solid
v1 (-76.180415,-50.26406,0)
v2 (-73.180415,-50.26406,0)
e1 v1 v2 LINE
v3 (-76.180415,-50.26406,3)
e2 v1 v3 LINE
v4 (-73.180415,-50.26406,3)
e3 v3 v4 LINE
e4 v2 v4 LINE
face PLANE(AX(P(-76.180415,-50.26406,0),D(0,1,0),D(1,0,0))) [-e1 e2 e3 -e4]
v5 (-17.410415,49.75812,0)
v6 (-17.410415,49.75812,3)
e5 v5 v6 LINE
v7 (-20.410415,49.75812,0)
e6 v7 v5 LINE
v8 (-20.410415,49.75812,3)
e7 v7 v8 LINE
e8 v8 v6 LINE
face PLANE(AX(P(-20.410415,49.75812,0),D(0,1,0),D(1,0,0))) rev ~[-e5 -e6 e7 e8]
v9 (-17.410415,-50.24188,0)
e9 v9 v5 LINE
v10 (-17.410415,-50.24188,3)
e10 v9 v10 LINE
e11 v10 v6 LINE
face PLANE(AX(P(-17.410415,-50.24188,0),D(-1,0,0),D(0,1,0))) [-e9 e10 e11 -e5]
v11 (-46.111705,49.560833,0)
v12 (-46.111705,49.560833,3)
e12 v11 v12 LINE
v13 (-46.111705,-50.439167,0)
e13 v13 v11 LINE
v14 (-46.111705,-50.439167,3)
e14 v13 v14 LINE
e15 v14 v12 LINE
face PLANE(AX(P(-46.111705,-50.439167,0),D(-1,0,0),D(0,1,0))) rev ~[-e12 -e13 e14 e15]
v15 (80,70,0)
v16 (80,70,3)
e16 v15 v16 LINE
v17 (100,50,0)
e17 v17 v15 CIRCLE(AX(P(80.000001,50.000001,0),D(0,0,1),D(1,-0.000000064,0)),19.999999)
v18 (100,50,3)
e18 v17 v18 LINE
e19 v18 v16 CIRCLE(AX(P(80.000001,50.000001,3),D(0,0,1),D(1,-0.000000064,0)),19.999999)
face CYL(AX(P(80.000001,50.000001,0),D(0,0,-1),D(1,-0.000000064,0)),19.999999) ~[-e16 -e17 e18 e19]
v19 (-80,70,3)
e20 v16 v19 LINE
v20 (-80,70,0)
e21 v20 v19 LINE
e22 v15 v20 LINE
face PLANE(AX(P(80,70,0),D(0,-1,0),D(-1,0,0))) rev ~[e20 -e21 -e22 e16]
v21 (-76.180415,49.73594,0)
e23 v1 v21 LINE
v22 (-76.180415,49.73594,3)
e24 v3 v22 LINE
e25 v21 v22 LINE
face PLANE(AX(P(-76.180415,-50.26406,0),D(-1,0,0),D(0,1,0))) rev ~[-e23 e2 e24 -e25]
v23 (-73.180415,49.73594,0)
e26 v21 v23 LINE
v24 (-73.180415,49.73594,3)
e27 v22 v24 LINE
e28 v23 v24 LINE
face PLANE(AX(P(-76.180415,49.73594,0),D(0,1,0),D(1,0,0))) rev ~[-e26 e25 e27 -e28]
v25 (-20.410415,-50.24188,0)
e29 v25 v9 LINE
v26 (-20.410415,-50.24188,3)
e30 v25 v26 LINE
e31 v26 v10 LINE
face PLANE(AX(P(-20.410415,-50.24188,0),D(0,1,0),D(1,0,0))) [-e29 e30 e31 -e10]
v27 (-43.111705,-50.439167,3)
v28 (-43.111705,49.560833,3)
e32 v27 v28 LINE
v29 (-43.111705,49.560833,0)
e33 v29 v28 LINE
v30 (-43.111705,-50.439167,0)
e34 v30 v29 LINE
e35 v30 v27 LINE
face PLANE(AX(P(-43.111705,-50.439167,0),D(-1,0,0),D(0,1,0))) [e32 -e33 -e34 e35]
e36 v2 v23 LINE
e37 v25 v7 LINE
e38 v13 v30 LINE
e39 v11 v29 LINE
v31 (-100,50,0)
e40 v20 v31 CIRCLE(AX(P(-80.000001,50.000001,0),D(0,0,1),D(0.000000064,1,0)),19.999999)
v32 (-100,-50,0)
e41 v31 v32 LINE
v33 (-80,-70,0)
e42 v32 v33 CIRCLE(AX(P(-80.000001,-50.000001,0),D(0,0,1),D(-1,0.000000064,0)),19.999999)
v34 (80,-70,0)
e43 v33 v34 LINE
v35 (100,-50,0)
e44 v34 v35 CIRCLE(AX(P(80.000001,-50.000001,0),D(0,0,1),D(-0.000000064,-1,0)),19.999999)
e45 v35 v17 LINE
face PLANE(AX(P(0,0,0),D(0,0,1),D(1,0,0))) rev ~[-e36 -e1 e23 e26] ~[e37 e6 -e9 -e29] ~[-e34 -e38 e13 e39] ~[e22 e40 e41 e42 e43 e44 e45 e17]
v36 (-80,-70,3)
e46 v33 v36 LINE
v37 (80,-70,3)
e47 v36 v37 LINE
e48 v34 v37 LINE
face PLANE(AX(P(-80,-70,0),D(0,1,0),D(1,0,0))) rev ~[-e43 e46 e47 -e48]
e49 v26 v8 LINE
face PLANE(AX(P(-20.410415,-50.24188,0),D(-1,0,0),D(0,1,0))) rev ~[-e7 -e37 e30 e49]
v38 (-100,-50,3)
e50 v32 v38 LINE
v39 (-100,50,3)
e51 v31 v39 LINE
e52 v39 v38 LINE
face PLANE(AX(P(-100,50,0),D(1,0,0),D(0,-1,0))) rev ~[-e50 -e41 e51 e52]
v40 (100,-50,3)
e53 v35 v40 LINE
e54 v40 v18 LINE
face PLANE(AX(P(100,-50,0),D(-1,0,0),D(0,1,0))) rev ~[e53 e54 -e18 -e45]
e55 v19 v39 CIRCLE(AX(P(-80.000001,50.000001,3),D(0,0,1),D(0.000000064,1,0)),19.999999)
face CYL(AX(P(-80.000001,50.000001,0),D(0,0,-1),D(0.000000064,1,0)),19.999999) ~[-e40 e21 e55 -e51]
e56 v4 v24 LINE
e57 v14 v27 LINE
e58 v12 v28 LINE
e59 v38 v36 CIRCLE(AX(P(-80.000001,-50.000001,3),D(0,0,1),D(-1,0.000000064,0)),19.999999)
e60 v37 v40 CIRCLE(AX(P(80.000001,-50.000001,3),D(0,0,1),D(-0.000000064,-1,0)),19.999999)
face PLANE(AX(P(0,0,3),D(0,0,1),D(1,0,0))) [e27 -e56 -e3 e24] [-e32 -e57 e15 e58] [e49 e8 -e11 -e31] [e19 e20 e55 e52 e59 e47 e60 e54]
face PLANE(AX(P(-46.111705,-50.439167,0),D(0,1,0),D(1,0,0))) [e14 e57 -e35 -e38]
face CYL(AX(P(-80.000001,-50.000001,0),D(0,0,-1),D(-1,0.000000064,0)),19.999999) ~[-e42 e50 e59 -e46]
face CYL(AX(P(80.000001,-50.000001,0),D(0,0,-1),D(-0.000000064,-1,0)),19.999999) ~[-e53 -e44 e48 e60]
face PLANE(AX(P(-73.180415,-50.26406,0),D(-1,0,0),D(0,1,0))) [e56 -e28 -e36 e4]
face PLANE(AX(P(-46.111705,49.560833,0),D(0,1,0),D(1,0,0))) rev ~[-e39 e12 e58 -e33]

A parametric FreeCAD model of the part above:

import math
import FreeCAD as App
import Part
import Sketcher
Q = App.Units.Quantity


def add_polygon(sketch, points):
    """Adds a closed chain of lines whose ends are joined by coincident constraints."""
    first, n = sketch.GeometryCount, len(points)
    for a, b in zip(points, points[1:] + points[:1]):
        sketch.addGeometry(Part.LineSegment(App.Vector(*a, 0), App.Vector(*b, 0)), False)
    for i in range(n):
        sketch.addConstraint(Sketcher.Constraint("Coincident", first + i, 2, first + (i + 1) % n, 1))

doc = App.newDocument("Part")
params = doc.addObject("Spreadsheet::Sheet", "Params")
for row, (alias, value) in enumerate([
    ("sketch1_radius", "19.999999 mm"),
    ("sketch1_width", "160 mm"),
    ("sketch1_width2", "3 mm"),
    ("sketch1_height", "100 mm"),
    ("pad1_length", "3 mm"),
], start=1):
    params.set(f"A{row}", alias)
    params.set(f"B{row}", "=" + value)
    params.setAlias(f"B{row}", alias)

body = doc.addObject("PartDesign::Body", "Body")

sketch1 = doc.addObject("Sketcher::SketchObject", "Sketch")
body.addObject(sketch1)
sketch1.AttachmentSupport = (doc.XY_Plane, [""])
sketch1.MapMode = "FlatFace"
sketch1.addGeometry(Part.LineSegment(App.Vector(-80, -70, 0), App.Vector(80, -70, 0)), False)
sketch1.addGeometry(Part.ArcOfCircle(Part.Circle(App.Vector(80, -50, 0), App.Vector(0, 0, 1), 20), math.radians(-90), math.radians(0)), False)
sketch1.addGeometry(Part.LineSegment(App.Vector(100, -50, 0), App.Vector(100, 50, 0)), False)
sketch1.addGeometry(Part.ArcOfCircle(Part.Circle(App.Vector(80, 50, 0), App.Vector(0, 0, 1), 20), math.radians(0), math.radians(90)), False)
sketch1.addGeometry(Part.LineSegment(App.Vector(80, 70, 0), App.Vector(-80, 70, 0)), False)
sketch1.addGeometry(Part.ArcOfCircle(Part.Circle(App.Vector(-80, 50, 0), App.Vector(0, 0, 1), 20), math.radians(90), math.radians(180)), False)
sketch1.addGeometry(Part.LineSegment(App.Vector(-100, 50, 0), App.Vector(-100, -50, 0)), False)
sketch1.addGeometry(Part.ArcOfCircle(Part.Circle(App.Vector(-80, -50, 0), App.Vector(0, 0, 1), 20), math.radians(180), math.radians(270)), False)
add_polygon(sketch1, [(-43.1, -50.4), (-46.1, -50.4), (-46.1, 49.6), (-43.1, 49.6)])
add_polygon(sketch1, [(-73.2, -50.3), (-76.2, -50.3), (-76.2, 49.7), (-73.2, 49.7)])
add_polygon(sketch1, [(-17.4, -50.2), (-20.4, -50.2), (-20.4, 49.8), (-17.4, 49.8)])
sketch1.addConstraint([
    Sketcher.Constraint("Tangent", 0, 2, 1, 1),
    Sketcher.Constraint("Tangent", 1, 2, 2, 1),
    Sketcher.Constraint("Tangent", 2, 2, 3, 1),
    Sketcher.Constraint("Tangent", 3, 2, 4, 1),
    Sketcher.Constraint("Tangent", 4, 2, 5, 1),
    Sketcher.Constraint("Tangent", 5, 2, 6, 1),
    Sketcher.Constraint("Tangent", 6, 2, 7, 1),
    Sketcher.Constraint("Tangent", 7, 2, 0, 1),
    Sketcher.Constraint("Horizontal", 0),
    Sketcher.Constraint("Vertical", 2),
    Sketcher.Constraint("Horizontal", 4),
    Sketcher.Constraint("Vertical", 6),
    Sketcher.Constraint("Horizontal", 8),
    Sketcher.Constraint("Vertical", 9),
    Sketcher.Constraint("Horizontal", 10),
    Sketcher.Constraint("Vertical", 11),
    Sketcher.Constraint("Horizontal", 12),
    Sketcher.Constraint("Vertical", 13),
    Sketcher.Constraint("Horizontal", 14),
    Sketcher.Constraint("Vertical", 15),
    Sketcher.Constraint("Horizontal", 16),
    Sketcher.Constraint("Vertical", 17),
    Sketcher.Constraint("Horizontal", 18),
    Sketcher.Constraint("Vertical", 19),
    Sketcher.Constraint("Equal", 1, 3),
    Sketcher.Constraint("Equal", 3, 5),
    Sketcher.Constraint("Equal", 5, 7),
    Sketcher.Constraint("Symmetric", 1, 3, 5, 3, -1, 1),
    Sketcher.Constraint("Equal", 10, 12),
    Sketcher.Constraint("Equal", 14, 16),
    Sketcher.Constraint("Equal", 6, 9),
    Sketcher.Constraint("Equal", 11, 13),
    Sketcher.Constraint("Equal", 15, 17),
    Sketcher.Constraint("Radius", 1, Q("19.999999 mm")),
    Sketcher.Constraint("DistanceX", 0, 1, 0, 2, Q("160 mm")),
    Sketcher.Constraint("DistanceX", 8, 2, 8, 1, Q("3 mm")),
    Sketcher.Constraint("DistanceY", 2, 1, 2, 2, Q("100 mm")),
    Sketcher.Constraint("DistanceX", 15, 2, 16, 2, Q("52.77 mm")),
    Sketcher.Constraint("DistanceY", 12, 2, -1, 1, Q("50.26406 mm")),
    Sketcher.Constraint("DistanceY", 16, 2, -1, 1, Q("50.24188 mm")),
    Sketcher.Constraint("DistanceY", 8, 2, 5, 3, Q("100.439168 mm")),
    Sketcher.Constraint("DistanceX", 12, 2, 8, 2, Q("30.06871 mm")),
    Sketcher.Constraint("DistanceX", 8, 2, -1, 1, Q("46.111705 mm")),
])
sketch1.setExpression("Constraints[45]", "Params.sketch1_radius")
sketch1.setExpression("Constraints[46]", "Params.sketch1_width")
sketch1.setExpression("Constraints[47]", "Params.sketch1_width2")
sketch1.setExpression("Constraints[48]", "Params.sketch1_height")
pad1 = doc.addObject("PartDesign::Pad", "Pad")
body.addObject(pad1)
pad1.Profile = sketch1
pad1.setExpression("Length", "Params.pad1_length")

doc.recompute()
